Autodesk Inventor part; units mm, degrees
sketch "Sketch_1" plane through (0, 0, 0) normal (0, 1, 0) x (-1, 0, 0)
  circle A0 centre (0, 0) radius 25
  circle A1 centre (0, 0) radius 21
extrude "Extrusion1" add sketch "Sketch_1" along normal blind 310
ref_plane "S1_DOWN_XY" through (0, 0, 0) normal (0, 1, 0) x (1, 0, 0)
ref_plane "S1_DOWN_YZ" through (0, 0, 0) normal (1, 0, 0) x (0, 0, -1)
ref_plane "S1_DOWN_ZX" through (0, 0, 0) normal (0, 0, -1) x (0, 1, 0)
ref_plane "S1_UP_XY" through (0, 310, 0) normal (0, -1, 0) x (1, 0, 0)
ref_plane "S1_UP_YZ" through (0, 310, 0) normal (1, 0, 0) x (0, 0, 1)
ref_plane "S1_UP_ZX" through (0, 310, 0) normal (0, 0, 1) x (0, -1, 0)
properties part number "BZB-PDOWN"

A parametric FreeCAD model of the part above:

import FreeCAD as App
import Part
import Sketcher

V = App.Vector
Q = App.Units.Quantity

doc = App.newDocument("Part")
body = doc.addObject("PartDesign::Body", "Body")

sketch1 = doc.addObject("Sketcher::SketchObject", "Sketch")
body.addObject(sketch1)
sketch1.AttachmentSupport = (doc.XZ_Plane, [""])
sketch1.MapMode = "FlatFace"
sketch1.addGeometry(Part.Circle(V(0, 0, 0), V(0, 0, 1), 25), False)
sketch1.addGeometry(Part.Circle(V(0, 0, 0), V(0, 0, 1), 21), False)
sketch1.addConstraint(Sketcher.Constraint("Coincident", 0, 3, -1, 1))
sketch1.addConstraint(Sketcher.Constraint("Coincident", 1, 3, -1, 1))
sketch1.addConstraint(Sketcher.Constraint("Diameter", 0, Q("50 mm")))
sketch1.addConstraint(Sketcher.Constraint("Diameter", 1, Q("42 mm")))
pad1 = doc.addObject("PartDesign::Pad", "Pad")
body.addObject(pad1)
pad1.Profile = sketch1
pad1.Length = 310
pad1.Reversed = True

doc.recompute()
